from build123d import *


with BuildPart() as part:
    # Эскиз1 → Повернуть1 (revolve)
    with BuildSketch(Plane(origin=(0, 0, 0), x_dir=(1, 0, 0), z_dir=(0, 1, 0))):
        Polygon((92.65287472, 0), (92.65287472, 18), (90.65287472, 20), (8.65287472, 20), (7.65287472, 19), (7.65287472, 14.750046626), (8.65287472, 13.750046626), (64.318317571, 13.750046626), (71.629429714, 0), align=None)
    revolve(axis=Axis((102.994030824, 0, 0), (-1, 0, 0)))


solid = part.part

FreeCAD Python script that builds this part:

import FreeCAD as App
import Part
import Sketcher

V = App.Vector
Q = App.Units.Quantity

doc = App.newDocument("Part")
body = doc.addObject("PartDesign::Body", "Body")

sketch1 = body.newObject("Sketcher::SketchObject", "Sketch")
sketch1.AttachmentSupport = (doc.getObject("XZ_Plane"), [""])
sketch1.MapMode = "FlatFace"
sketch1.addGeometry(Part.LineSegment(V(92.7, 0, 0), V(92.7, -18, 0)), False)
sketch1.addGeometry(Part.LineSegment(V(92.7, -18, 0), V(90.7, -20, 0)), False)
sketch1.addGeometry(Part.LineSegment(V(90.7, -20, 0), V(8.7, -20, 0)), False)
sketch1.addGeometry(Part.LineSegment(V(8.7, -20, 0), V(7.7, -19, 0)), False)
sketch1.addGeometry(Part.LineSegment(V(7.7, -19, 0), V(7.7, -14.8, 0)), False)
sketch1.addGeometry(Part.LineSegment(V(7.7, -14.8, 0), V(8.7, -13.8, 0)), False)
sketch1.addGeometry(Part.LineSegment(V(8.7, -13.8, 0), V(64.3, -13.8, 0)), False)
sketch1.addGeometry(Part.LineSegment(V(64.3, -13.8, 0), V(71.6, 0, 0)), False)
sketch1.addGeometry(Part.LineSegment(V(71.6, 0, 0), V(92.7, 0, 0)), False)
sketch1.addConstraint(Sketcher.Constraint("Coincident", 0, 2, 1, 1))
sketch1.addConstraint(Sketcher.Constraint("Coincident", 1, 2, 2, 1))
sketch1.addConstraint(Sketcher.Constraint("Coincident", 2, 2, 3, 1))
sketch1.addConstraint(Sketcher.Constraint("Coincident", 3, 2, 4, 1))
sketch1.addConstraint(Sketcher.Constraint("Coincident", 4, 2, 5, 1))
sketch1.addConstraint(Sketcher.Constraint("Coincident", 5, 2, 6, 1))
sketch1.addConstraint(Sketcher.Constraint("Coincident", 6, 2, 7, 1))
sketch1.addConstraint(Sketcher.Constraint("Coincident", 7, 2, 8, 1))
sketch1.addConstraint(Sketcher.Constraint("Coincident", 8, 2, 0, 1))
sketch1.addConstraint(Sketcher.Constraint("Vertical", 0))
sketch1.addConstraint(Sketcher.Constraint("Horizontal", 2))
sketch1.addConstraint(Sketcher.Constraint("Vertical", 4))
sketch1.addConstraint(Sketcher.Constraint("Horizontal", 6))
sketch1.addConstraint(Sketcher.Constraint("Horizontal", 8))
sketch1.addConstraint(Sketcher.Constraint("PointOnObject", 7, 2, -1))
sketch1.addConstraint(Sketcher.Constraint("Perpendicular", 1, 3))
sketch1.addConstraint(Sketcher.Constraint("Perpendicular", 3, 5))
sketch1.addConstraint(Sketcher.Constraint("Vertical", 2, 2, 5, 2))
sketch1.addConstraint(Sketcher.Constraint("Equal", 3, 5))
sketch1.addConstraint(Sketcher.Constraint("DistanceX", 2, 2, 2, 1, Q("82 mm")))
sketch1.addConstraint(Sketcher.Constraint("DistanceY", 0, 2, 0, 1, Q("18 mm")))
sketch1.addConstraint(Sketcher.Constraint("DistanceY", 1, 2, -1, 1, Q("20 mm")))
sketch1.addConstraint(Sketcher.Constraint("DistanceY", 3, 2, -1, 1, Q("19 mm")))
sketch1.addConstraint(Sketcher.Constraint("Distance", 7, Q("15.57293 mm")))
sketch1.addConstraint(Sketcher.Constraint("DistanceX", 6, 1, 6, 2, Q("55.665443 mm")))
sketch1.addConstraint(Sketcher.Constraint("DistanceX", 8, 1, 8, 2, Q("21.023445 mm")))
sketch1.addConstraint(Sketcher.Constraint("DistanceX", -1, 1, 7, 2, Q("71.62943 mm")))
revolution = body.newObject("PartDesign::Revolution", "Revolution")
revolution.Profile = sketch1
revolution.ReferenceAxis = (sketch1, ["H_Axis"])
revolution.Angle = 360

doc.recompute()
